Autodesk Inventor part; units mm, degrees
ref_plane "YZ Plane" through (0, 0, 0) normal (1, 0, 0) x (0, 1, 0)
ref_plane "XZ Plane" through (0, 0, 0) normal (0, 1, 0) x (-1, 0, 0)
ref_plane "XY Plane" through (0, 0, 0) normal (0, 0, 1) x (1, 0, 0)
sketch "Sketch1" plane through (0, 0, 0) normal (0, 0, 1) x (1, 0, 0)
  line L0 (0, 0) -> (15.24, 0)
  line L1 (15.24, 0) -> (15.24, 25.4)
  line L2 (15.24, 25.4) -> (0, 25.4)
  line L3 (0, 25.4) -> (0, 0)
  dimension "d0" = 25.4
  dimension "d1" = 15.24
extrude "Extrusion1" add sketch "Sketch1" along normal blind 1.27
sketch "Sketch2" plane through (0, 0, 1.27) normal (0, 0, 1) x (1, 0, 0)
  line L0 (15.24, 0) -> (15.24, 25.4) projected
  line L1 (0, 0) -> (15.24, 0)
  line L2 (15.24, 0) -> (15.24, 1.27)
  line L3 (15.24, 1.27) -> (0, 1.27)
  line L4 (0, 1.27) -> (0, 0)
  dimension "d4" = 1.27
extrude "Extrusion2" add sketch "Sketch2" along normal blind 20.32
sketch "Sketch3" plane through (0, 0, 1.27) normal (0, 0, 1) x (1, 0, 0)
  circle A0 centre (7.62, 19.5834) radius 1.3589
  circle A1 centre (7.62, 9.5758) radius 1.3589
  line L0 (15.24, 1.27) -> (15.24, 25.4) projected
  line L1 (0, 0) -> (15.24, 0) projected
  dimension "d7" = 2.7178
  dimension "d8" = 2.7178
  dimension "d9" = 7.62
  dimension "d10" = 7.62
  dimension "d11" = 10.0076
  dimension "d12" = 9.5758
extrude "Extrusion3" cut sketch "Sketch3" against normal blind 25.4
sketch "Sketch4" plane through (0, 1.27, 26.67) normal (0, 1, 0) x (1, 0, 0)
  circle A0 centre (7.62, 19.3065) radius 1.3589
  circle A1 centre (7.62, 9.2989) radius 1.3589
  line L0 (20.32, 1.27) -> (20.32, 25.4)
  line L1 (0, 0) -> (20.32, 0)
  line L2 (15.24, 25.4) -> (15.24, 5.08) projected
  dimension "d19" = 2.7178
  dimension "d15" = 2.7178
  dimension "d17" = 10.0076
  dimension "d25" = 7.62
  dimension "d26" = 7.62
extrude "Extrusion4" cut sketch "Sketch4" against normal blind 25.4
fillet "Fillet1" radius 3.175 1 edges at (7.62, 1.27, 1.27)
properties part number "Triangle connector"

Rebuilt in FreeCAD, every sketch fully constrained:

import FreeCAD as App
import Part
import Sketcher
from FreeCAD import Vector
Q = App.Units.Quantity


def edges_at(feature, points):
    """Names of the edges that pass closest to the given points."""
    edges = feature.Shape.Edges
    near = lambda p: min(range(len(edges)), key=lambda i: edges[i].distToShape(Part.Vertex(*p))[0])
    return sorted({f"Edge{near(p) + 1}" for p in points})

doc = App.newDocument("Part")
body = doc.addObject("PartDesign::Body", "Body")

sketch1 = doc.addObject("Sketcher::SketchObject", "Sketch")
body.addObject(sketch1)
sketch1.AttachmentSupport = (doc.XY_Plane, [""])
sketch1.MapMode = "FlatFace"
sketch1.addGeometry([
    Part.LineSegment(Vector(0, 25.4, 0), Vector(0, 0, 0)),
    Part.LineSegment(Vector(0, 0, 0), Vector(15.24, 0, 0)),
    Part.LineSegment(Vector(15.24, 0, 0), Vector(15.24, 25.4, 0)),
    Part.LineSegment(Vector(15.24, 25.4, 0), Vector(0, 25.4, 0)),
], False)
sketch1.addConstraint([
    Sketcher.Constraint("Coincident", 0, 2, 1, 1),
    Sketcher.Constraint("Coincident", 1, 2, 2, 1),
    Sketcher.Constraint("Coincident", 2, 2, 3, 1),
    Sketcher.Constraint("Coincident", 3, 2, 0, 1),
    Sketcher.Constraint("Vertical", 0),
    Sketcher.Constraint("Horizontal", 1),
    Sketcher.Constraint("Vertical", 2),
    Sketcher.Constraint("Horizontal", 3),
    Sketcher.Constraint("Coincident", 0, 2, -1, 1),
    Sketcher.Constraint("DistanceY", 0, 2, 0, 1, Q("1 in")),
    Sketcher.Constraint("DistanceX", 1, 1, 1, 2, Q("0.6 in")),
])
pad1 = doc.addObject("PartDesign::Pad", "Pad")
body.addObject(pad1)
pad1.Profile = sketch1
pad1.Length = Q("0.05 in")

sketch2 = doc.addObject("Sketcher::SketchObject", "Sketch001")
body.addObject(sketch2)
sketch2.AttachmentSupport = (doc.XY_Plane, [""])
sketch2.MapMode = "FlatFace"
sketch2.AttachmentOffset = App.Placement(Vector(0, 0, 0.05 * 25.4), App.Rotation())
sketch2.addGeometry([
    Part.LineSegment(Vector(0, 0, 0), Vector(15.24, 0, 0)),
    Part.LineSegment(Vector(15.24, 0, 0), Vector(15.24, 1.27, 0)),
    Part.LineSegment(Vector(15.24, 1.27, 0), Vector(0, 1.27, 0)),
    Part.LineSegment(Vector(0, 1.27, 0), Vector(0, 0, 0)),
], False)
sketch2.addConstraint([
    Sketcher.Constraint("Coincident", 0, 2, 1, 1),
    Sketcher.Constraint("Coincident", 1, 2, 2, 1),
    Sketcher.Constraint("Coincident", 2, 2, 3, 1),
    Sketcher.Constraint("Coincident", 3, 2, 0, 1),
    Sketcher.Constraint("Horizontal", 0),
    Sketcher.Constraint("Vertical", 1),
    Sketcher.Constraint("Horizontal", 2),
    Sketcher.Constraint("Vertical", 3),
    Sketcher.Constraint("Coincident", 3, 2, -1, 1),
    Sketcher.Constraint("DistanceY", 1, 1, 1, 2, Q("0.05 in")),
    Sketcher.Constraint("DistanceX", 0, 1, 0, 2, Q("0.6 in")),
])
pad2 = doc.addObject("PartDesign::Pad", "Pad001")
body.addObject(pad2)
pad2.Profile = sketch2
pad2.Length = Q("0.8 in")

sketch3 = doc.addObject("Sketcher::SketchObject", "Sketch002")
body.addObject(sketch3)
sketch3.AttachmentSupport = (doc.XY_Plane, [""])
sketch3.MapMode = "FlatFace"
sketch3.AttachmentOffset = App.Placement(Vector(0, 0, 0.05 * 25.4), App.Rotation())
sketch3.addGeometry([
    Part.Circle(Vector(7.62, 19.5834, 0), Vector(0, 0, 1), 1.3589),
    Part.Circle(Vector(7.62, 9.5758, 0), Vector(0, 0, 1), 1.3589),
], False)
sketch3.addConstraint([
    Sketcher.Constraint("Equal", 0, 1),
    Sketcher.Constraint("Vertical", 0, 3, 1, 3),
    Sketcher.Constraint("Diameter", 0, Q("0.107 in")),
    Sketcher.Constraint("DistanceX", -1, 1, 0, 3, Q("0.3 in")),
    Sketcher.Constraint("DistanceY", -1, 1, 1, 3, Q("0.377 in")),
    Sketcher.Constraint("DistanceY", 1, 3, 0, 3, Q("0.394 in")),
])
pocket1 = doc.addObject("PartDesign::Pocket", "Pocket")
body.addObject(pocket1)
pocket1.Profile = sketch3
pocket1.Length = Q("1 in")

sketch4 = doc.addObject("Sketcher::SketchObject", "Sketch003")
body.addObject(sketch4)
sketch4.AttachmentSupport = (doc.XZ_Plane, [""])
sketch4.MapMode = "FlatFace"
sketch4.AttachmentOffset = App.Placement(Vector(0, 0, -0.05 * 25.4), App.Rotation())
sketch4.addGeometry([
    Part.Circle(Vector(7.62, 7.3635, 0), Vector(0, 0, 1), 1.3589),
    Part.Circle(Vector(7.62, 17.3711, 0), Vector(0, 0, 1), 1.3589),
], False)
sketch4.addConstraint([
    Sketcher.Constraint("Equal", 0, 1),
    Sketcher.Constraint("Vertical", 0, 3, 1, 3),
    Sketcher.Constraint("Diameter", 0, Q("0.107 in")),
    Sketcher.Constraint("DistanceX", -1, 1, 0, 3, Q("0.3 in")),
    Sketcher.Constraint("DistanceY", 0, 3, 1, 3, Q("0.394 in")),
    Sketcher.Constraint("DistanceY", -1, 1, 0, 3, Q("0.2899 in")),
])
pocket2 = doc.addObject("PartDesign::Pocket", "Pocket001")
body.addObject(pocket2)
pocket2.Profile = sketch4
pocket2.Length = Q("1 in")
pocket2.Reversed = True
doc.recompute()

fillet = doc.addObject("PartDesign::Fillet", "Fillet")
body.addObject(fillet)
fillet.Base = (pocket2, edges_at(pocket2, [(7.62, 1.27, 1.27)]))
fillet.Radius = Q("0.125 in")

doc.recompute()
